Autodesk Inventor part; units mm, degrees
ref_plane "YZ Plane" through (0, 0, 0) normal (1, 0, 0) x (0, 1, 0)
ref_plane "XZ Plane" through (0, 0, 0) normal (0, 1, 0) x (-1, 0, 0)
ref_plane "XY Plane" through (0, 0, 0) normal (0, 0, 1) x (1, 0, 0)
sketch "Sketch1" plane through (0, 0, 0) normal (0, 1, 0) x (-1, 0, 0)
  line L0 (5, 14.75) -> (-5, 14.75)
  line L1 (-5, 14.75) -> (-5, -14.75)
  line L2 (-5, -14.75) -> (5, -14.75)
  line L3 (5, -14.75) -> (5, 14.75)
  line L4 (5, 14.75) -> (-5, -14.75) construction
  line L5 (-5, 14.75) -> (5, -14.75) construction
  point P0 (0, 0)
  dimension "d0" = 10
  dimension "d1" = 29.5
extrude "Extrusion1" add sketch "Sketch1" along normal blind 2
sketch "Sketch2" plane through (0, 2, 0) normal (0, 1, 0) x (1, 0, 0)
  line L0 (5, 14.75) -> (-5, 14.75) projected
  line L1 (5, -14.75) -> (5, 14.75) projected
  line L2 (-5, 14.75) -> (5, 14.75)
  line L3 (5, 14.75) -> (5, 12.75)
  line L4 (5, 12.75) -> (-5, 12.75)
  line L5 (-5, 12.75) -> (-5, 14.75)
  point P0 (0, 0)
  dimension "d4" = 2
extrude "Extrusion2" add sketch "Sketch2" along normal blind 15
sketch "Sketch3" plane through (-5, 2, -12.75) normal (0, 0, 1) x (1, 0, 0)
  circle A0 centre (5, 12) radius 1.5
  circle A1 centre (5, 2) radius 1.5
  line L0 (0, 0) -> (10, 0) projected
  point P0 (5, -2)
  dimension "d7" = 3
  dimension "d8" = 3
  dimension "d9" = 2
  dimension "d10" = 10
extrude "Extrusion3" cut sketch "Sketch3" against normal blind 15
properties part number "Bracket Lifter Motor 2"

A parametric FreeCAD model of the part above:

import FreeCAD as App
import Part
import Sketcher
from FreeCAD import Vector
Q = App.Units.Quantity


def add_polygon(sketch, points):
    """Adds a closed chain of lines whose ends are joined by coincident constraints."""
    first, n = sketch.GeometryCount, len(points)
    for a, b in zip(points, points[1:] + points[:1]):
        sketch.addGeometry(Part.LineSegment(App.Vector(*a, 0), App.Vector(*b, 0)), False)
    for i in range(n):
        sketch.addConstraint(Sketcher.Constraint("Coincident", first + i, 2, first + (i + 1) % n, 1))

doc = App.newDocument("Part")
body = doc.addObject("PartDesign::Body", "Body")

# Sketch on XZ plane
sketch1 = body.newObject("Sketcher::SketchObject", "Sketch")
sketch1.AttachmentSupport = (doc.getObject("XZ_Plane"), [""])
sketch1.MapMode = "FlatFace"
add_polygon(sketch1, [(-5, -15), (-5, 15), (5, 15), (5, -15)])  # lines 0-3
sketch1.addConstraint([
    Sketcher.Constraint("Vertical", 0),
    Sketcher.Constraint("Horizontal", 1),
    Sketcher.Constraint("Vertical", 2),
    Sketcher.Constraint("Horizontal", 3),
    Sketcher.Constraint("Symmetric", 0, 2, 2, 2, -1, 1),
    Sketcher.Constraint("DistanceX", 1, 1, 1, 2, Q("10 mm")),
    Sketcher.Constraint("DistanceY", 0, 1, 0, 2, Q("29.5 mm")),
])
pad1 = body.newObject("PartDesign::Pad", "Pad")
pad1.Profile = sketch1
pad1.Length = 2
pad1.Reversed = True

# Sketch on XZ plane
sketch2 = body.newObject("Sketcher::SketchObject", "Sketch001")
sketch2.AttachmentSupport = (doc.getObject("XZ_Plane"), [""])
sketch2.MapMode = "FlatFace"
sketch2.AttachmentOffset = App.Placement(Vector(0, 0, -2), App.Rotation())
add_polygon(sketch2, [(5, -12.8), (5, -14.8), (-5, -14.8), (-5, -12.8)])  # lines 0-3
sketch2.addConstraint([
    Sketcher.Constraint("Vertical", 0),
    Sketcher.Constraint("Horizontal", 1),
    Sketcher.Constraint("Vertical", 2),
    Sketcher.Constraint("Horizontal", 3),
    Sketcher.Constraint("DistanceY", 0, 2, 0, 1, Q("2 mm")),
    Sketcher.Constraint("DistanceX", 1, 2, 1, 1, Q("10 mm")),
    Sketcher.Constraint("DistanceX", -1, 1, 0, 2, Q("5 mm")),
    Sketcher.Constraint("DistanceY", 0, 2, -1, 1, Q("14.75 mm")),
])
pad2 = body.newObject("PartDesign::Pad", "Pad001")
pad2.Profile = sketch2
pad2.Length = 15
pad2.Reversed = True

# Sketch on XY plane
sketch3 = body.newObject("Sketcher::SketchObject", "Sketch002")
sketch3.AttachmentSupport = (doc.getObject("XY_Plane"), [""])
sketch3.MapMode = "FlatFace"
sketch3.AttachmentOffset = App.Placement(Vector(0, 0, -12.75), App.Rotation())
sketch3.addGeometry([
    Part.Circle(Vector(0, 14, 0), Vector(0, 0, 1), 1.5),
    Part.Circle(Vector(0, 4, 0), Vector(0, 0, 1), 1.5),
], False)
sketch3.addConstraint([
    Sketcher.Constraint("Equal", 0, 1),
    Sketcher.Constraint("PointOnObject", 0, 3, -2),
    Sketcher.Constraint("PointOnObject", 1, 3, -2),
    Sketcher.Constraint("Diameter", 0, Q("3 mm")),
    Sketcher.Constraint("DistanceY", 1, 3, 0, 3, Q("10 mm")),
    Sketcher.Constraint("DistanceY", -1, 1, 0, 3, Q("14 mm")),
])
pocket1 = body.newObject("PartDesign::Pocket", "Pocket")
pocket1.Profile = sketch3
pocket1.Length = 15

doc.recompute()
